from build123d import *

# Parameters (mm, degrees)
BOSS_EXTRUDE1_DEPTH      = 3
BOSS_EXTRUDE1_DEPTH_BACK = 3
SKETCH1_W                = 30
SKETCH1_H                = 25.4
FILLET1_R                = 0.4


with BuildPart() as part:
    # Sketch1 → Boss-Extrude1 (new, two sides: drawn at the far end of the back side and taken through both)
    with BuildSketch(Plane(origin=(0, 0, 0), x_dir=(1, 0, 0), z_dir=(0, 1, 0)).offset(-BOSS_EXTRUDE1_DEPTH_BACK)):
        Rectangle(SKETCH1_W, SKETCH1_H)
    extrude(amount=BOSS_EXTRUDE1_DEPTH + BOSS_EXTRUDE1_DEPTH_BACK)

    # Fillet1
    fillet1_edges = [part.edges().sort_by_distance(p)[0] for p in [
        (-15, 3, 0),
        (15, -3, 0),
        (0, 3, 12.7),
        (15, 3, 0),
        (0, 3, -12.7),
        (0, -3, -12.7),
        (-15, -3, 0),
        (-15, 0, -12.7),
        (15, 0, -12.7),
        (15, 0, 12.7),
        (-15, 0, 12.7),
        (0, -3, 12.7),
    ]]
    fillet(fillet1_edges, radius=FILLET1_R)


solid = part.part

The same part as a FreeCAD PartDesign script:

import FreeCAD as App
import Part
import Sketcher

V = App.Vector
Q = App.Units.Quantity

doc = App.newDocument("Part")
params = doc.addObject("Spreadsheet::Sheet", "Params")
for row, (alias, value) in enumerate([
    ("sketch1_width", "30 mm"),
    ("sketch1_height", "25.4 mm"),
    ("pad1_length", "3 mm"),
    ("pad1_length2", "3 mm"),
    ("fillet_radius", "0.4 mm"),
], start=1):
    params.set(f"A{row}", alias)
    params.set(f"B{row}", "=" + value)
    params.setAlias(f"B{row}", alias)

body = doc.addObject("PartDesign::Body", "Body")

sketch1 = body.newObject("Sketcher::SketchObject", "Sketch")
sketch1.AttachmentSupport = (doc.getObject("XZ_Plane"), [""])
sketch1.MapMode = "FlatFace"
sketch1.addGeometry(Part.LineSegment(V(-15, -12.7, 0), V(-15, 12.7, 0)), False)
sketch1.addGeometry(Part.LineSegment(V(-15, 12.7, 0), V(15, 12.7, 0)), False)
sketch1.addGeometry(Part.LineSegment(V(15, 12.7, 0), V(15, -12.7, 0)), False)
sketch1.addGeometry(Part.LineSegment(V(15, -12.7, 0), V(-15, -12.7, 0)), False)
sketch1.addConstraint(Sketcher.Constraint("Coincident", 0, 2, 1, 1))
sketch1.addConstraint(Sketcher.Constraint("Coincident", 1, 2, 2, 1))
sketch1.addConstraint(Sketcher.Constraint("Coincident", 2, 2, 3, 1))
sketch1.addConstraint(Sketcher.Constraint("Coincident", 3, 2, 0, 1))
sketch1.addConstraint(Sketcher.Constraint("Vertical", 0))
sketch1.addConstraint(Sketcher.Constraint("Horizontal", 1))
sketch1.addConstraint(Sketcher.Constraint("Vertical", 2))
sketch1.addConstraint(Sketcher.Constraint("Horizontal", 3))
sketch1.addConstraint(Sketcher.Constraint("Symmetric", 0, 2, 2, 2, -1, 1))
sketch1.addConstraint(Sketcher.Constraint("DistanceX", 1, 1, 1, 2, Q("30 mm")))
sketch1.addConstraint(Sketcher.Constraint("DistanceY", 0, 1, 0, 2, Q("25.4 mm")))
sketch1.setExpression("Constraints[9]", "Params.sketch1_width")
sketch1.setExpression("Constraints[10]", "Params.sketch1_height")
pad1 = body.newObject("PartDesign::Pad", "Pad")
pad1.Profile = sketch1
pad1.Type = "TwoLengths"
pad1.setExpression("Length", "Params.pad1_length")
pad1.setExpression("Length2", "Params.pad1_length2")
pad1.Reversed = True
doc.recompute()

fillet = body.newObject("PartDesign::Fillet", "Fillet")
fillet.Base = (pad1, ["Edge1"])
fillet.UseAllEdges = True
fillet.setExpression("Radius", "Params.fillet_radius")

doc.recompute()
